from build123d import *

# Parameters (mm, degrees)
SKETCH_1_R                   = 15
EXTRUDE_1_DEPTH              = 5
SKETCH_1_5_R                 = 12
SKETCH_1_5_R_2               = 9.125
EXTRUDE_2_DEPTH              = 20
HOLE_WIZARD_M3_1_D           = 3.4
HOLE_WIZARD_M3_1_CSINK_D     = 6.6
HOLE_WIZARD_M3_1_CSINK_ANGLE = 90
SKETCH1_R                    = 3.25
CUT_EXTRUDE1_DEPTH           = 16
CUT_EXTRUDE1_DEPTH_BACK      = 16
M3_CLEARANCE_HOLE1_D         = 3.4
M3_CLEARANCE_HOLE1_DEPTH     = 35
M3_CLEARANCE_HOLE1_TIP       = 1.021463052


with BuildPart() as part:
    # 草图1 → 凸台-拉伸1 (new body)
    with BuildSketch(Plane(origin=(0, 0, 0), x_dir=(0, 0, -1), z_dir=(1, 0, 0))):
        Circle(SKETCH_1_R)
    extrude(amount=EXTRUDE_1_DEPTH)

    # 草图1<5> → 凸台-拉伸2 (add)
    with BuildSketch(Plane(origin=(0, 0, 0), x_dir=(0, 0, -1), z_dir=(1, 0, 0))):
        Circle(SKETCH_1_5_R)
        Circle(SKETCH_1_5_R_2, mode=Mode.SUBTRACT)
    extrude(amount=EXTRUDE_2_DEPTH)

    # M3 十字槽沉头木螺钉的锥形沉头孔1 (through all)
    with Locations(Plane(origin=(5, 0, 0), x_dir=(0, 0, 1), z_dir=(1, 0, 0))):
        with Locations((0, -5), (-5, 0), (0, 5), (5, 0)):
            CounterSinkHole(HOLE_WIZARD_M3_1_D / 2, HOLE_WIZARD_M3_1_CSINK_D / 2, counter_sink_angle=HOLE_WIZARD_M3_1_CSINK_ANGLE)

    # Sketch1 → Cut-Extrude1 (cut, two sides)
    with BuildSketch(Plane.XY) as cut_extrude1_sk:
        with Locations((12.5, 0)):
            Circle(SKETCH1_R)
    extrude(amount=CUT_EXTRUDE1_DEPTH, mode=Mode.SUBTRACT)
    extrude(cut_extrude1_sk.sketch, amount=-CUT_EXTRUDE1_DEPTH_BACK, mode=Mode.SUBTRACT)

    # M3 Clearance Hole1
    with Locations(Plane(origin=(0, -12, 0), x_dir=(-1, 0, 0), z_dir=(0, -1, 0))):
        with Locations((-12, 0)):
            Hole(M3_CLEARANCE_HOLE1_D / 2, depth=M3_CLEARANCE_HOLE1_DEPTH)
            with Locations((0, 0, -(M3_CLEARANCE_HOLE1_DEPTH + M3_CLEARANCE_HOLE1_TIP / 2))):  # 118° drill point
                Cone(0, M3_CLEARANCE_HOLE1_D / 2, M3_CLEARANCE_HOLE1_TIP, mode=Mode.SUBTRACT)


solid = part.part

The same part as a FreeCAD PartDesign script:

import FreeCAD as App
import Part
import Sketcher

V = App.Vector
Q = App.Units.Quantity

doc = App.newDocument("Part")
body = doc.addObject("PartDesign::Body", "Body")

# Sketch on YZ plane
sketch1 = body.newObject("Sketcher::SketchObject", "Sketch")
sketch1.AttachmentSupport = (doc.getObject("YZ_Plane"), [""])
sketch1.MapMode = "FlatFace"
sketch1.addGeometry(Part.Circle(V(0, 0, 0), V(0, 0, 1), 15), False)
sketch1.addConstraint([
    Sketcher.Constraint("Coincident", 0, 3, -1, 1),
    Sketcher.Constraint("Diameter", 0, Q("30 mm")),
])
pad1 = body.newObject("PartDesign::Pad", "Pad")
pad1.Profile = sketch1
pad1.Length = 5

# Sketch on YZ plane
sketch2 = body.newObject("Sketcher::SketchObject", "Sketch001")
sketch2.AttachmentSupport = (doc.getObject("YZ_Plane"), [""])
sketch2.MapMode = "FlatFace"
sketch2.addGeometry([
    Part.Circle(V(0, 0, 0), V(0, 0, 1), 12),
    Part.Circle(V(0, 0, 0), V(0, 0, 1), 9),
], False)
sketch2.addConstraint([
    Sketcher.Constraint("Coincident", 0, 3, -1, 1),
    Sketcher.Constraint("Coincident", 1, 3, -1, 1),
    Sketcher.Constraint("Diameter", 0, Q("24 mm")),
    Sketcher.Constraint("Diameter", 1, Q("18.25 mm")),
])
pad2 = body.newObject("PartDesign::Pad", "Pad001")
pad2.Profile = sketch2
pad2.Length = 20

# Sketch on YZ plane
sketch3 = body.newObject("Sketcher::SketchObject", "Sketch002")
sketch3.AttachmentSupport = (doc.getObject("YZ_Plane"), [""])
sketch3.MapMode = "FlatFace"
sketch3.AttachmentOffset = App.Placement(V(0, 0, 5), App.Rotation())
sketch3.addGeometry([
    Part.Circle(V(5, 0, 0), V(0, 0, 1), 1.7),
    Part.Circle(V(0, -5, 0), V(0, 0, 1), 1.7),
    Part.Circle(V(-5, 0, 0), V(0, 0, 1), 1.7),
    Part.Circle(V(0, 5, 0), V(0, 0, 1), 1.7),
], False)
sketch3.addConstraint([
    Sketcher.Constraint("Equal", 0, 1),
    Sketcher.Constraint("Equal", 1, 2),
    Sketcher.Constraint("Equal", 2, 3),
    Sketcher.Constraint("Symmetric", 0, 3, 2, 3, -1, 1),
    Sketcher.Constraint("Symmetric", 1, 3, 3, 3, -1, 1),
    Sketcher.Constraint("PointOnObject", 0, 3, -1),
    Sketcher.Constraint("PointOnObject", 1, 3, -2),
    Sketcher.Constraint("Diameter", 0, Q("3.4 mm")),
    Sketcher.Constraint("DistanceX", -1, 1, 0, 3, Q("5 mm")),
    Sketcher.Constraint("DistanceY", 1, 3, -1, 1, Q("5 mm")),
])
doc.recompute()
hole = body.newObject("PartDesign::Hole", "Hole")
hole.Profile = sketch3
hole.ThreadType = "None"
hole.Diameter = 3.4
hole.DepthType = "ThroughAll"
hole.HoleCutType = "Countersink"
hole.HoleCutDiameter = 6.6
hole.HoleCutCountersinkAngle = 90

# Sketch on XY plane
sketch4 = body.newObject("Sketcher::SketchObject", "Sketch003")
sketch4.AttachmentSupport = (doc.getObject("XY_Plane"), [""])
sketch4.MapMode = "FlatFace"
sketch4.addGeometry(Part.Circle(V(12.5, 0, 0), V(0, 0, 1), 3.2), False)
sketch4.addConstraint([
    Sketcher.Constraint("PointOnObject", 0, 3, -1),
    Sketcher.Constraint("Diameter", 0, Q("6.5 mm")),
    Sketcher.Constraint("DistanceX", -1, 1, 0, 3, Q("12.5 mm")),
])
pocket1 = body.newObject("PartDesign::Pocket", "Pocket")
pocket1.Profile = sketch4
pocket1.Type = "ThroughAll"
pocket1.Midplane = True

# Sketch on XZ plane
sketch5 = body.newObject("Sketcher::SketchObject", "Sketch004")
sketch5.AttachmentSupport = (doc.getObject("XZ_Plane"), [""])
sketch5.MapMode = "FlatFace"
sketch5.AttachmentOffset = App.Placement(V(0, 0, 12), App.Rotation())
sketch5.addGeometry(Part.Circle(V(12, 0, 0), V(0, 0, 1), 1.7), False)
sketch5.addConstraint([
    Sketcher.Constraint("PointOnObject", 0, 3, -1),
    Sketcher.Constraint("Diameter", 0, Q("3.4 mm")),
    Sketcher.Constraint("DistanceX", -1, 1, 0, 3, Q("12 mm")),
])
doc.recompute()
hole2 = body.newObject("PartDesign::Hole", "Hole001")
hole2.Profile = sketch5
hole2.ThreadType = "None"
hole2.Diameter = 3.4
hole2.DepthType = "Dimension"
hole2.Depth = 35
hole2.DrillPoint = "Angled"
hole2.DrillPointAngle = 118

doc.recompute()
